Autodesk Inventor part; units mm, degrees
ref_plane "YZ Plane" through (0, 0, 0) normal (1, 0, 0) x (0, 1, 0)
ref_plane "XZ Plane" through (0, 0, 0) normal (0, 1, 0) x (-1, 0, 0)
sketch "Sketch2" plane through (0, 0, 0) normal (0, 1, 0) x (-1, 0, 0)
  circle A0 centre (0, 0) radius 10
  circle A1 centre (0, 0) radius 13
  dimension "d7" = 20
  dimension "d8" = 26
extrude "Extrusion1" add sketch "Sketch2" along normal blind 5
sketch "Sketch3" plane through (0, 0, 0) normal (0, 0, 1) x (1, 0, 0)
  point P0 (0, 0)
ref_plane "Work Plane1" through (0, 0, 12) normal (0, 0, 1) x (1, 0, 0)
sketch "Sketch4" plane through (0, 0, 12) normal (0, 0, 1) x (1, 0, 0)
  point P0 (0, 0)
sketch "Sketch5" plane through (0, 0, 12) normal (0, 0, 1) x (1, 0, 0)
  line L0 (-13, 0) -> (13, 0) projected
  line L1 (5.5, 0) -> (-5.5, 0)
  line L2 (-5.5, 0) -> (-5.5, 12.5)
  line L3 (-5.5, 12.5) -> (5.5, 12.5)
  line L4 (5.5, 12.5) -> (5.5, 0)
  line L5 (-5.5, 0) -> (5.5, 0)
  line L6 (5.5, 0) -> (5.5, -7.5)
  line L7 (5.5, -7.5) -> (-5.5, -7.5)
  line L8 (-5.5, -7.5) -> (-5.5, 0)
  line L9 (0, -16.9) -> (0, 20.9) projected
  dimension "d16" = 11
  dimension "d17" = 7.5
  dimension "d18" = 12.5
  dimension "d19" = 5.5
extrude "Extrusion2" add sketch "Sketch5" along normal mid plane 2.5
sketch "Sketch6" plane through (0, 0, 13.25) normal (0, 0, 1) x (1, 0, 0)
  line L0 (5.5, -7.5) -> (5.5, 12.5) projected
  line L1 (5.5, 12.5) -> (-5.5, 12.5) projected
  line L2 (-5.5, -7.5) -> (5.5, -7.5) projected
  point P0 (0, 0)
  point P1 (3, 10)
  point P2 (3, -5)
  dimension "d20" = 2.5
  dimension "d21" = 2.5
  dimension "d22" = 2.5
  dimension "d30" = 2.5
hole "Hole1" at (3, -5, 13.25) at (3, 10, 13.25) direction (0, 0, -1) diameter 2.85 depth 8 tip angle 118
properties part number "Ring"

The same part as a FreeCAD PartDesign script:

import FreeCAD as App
import Part
import Sketcher


def add_polygon(sketch, points):
    """Adds a closed chain of lines whose ends are joined by coincident constraints."""
    first, n = sketch.GeometryCount, len(points)
    for a, b in zip(points, points[1:] + points[:1]):
        sketch.addGeometry(Part.LineSegment(App.Vector(*a, 0), App.Vector(*b, 0)), False)
    for i in range(n):
        sketch.addConstraint(Sketcher.Constraint("Coincident", first + i, 2, first + (i + 1) % n, 1))

doc = App.newDocument("Part")
body = doc.addObject("PartDesign::Body", "Body")

sketch1 = body.newObject("Sketcher::SketchObject", "Sketch")
sketch1.AttachmentSupport = (doc.getObject("XZ_Plane"), [""])
sketch1.MapMode = "FlatFace"
sketch1.addGeometry([
    Part.Circle(App.Vector(0, 0, 0), App.Vector(0, 0, 1), 13),
    Part.Circle(App.Vector(0, 0, 0), App.Vector(0, 0, 1), 10),
], False)
sketch1.addConstraint([
    Sketcher.Constraint("Coincident", 0, 3, -1, 1),
    Sketcher.Constraint("Coincident", 1, 3, -1, 1),
    Sketcher.Constraint("Diameter", 0, 26.0),
    Sketcher.Constraint("Diameter", 1, 20.0),
])
pad1 = body.newObject("PartDesign::Pad", "Pad")
pad1.Profile = sketch1
pad1.Length = 5
pad1.Reversed = True

sketch2 = body.newObject("Sketcher::SketchObject", "Sketch001")
sketch2.AttachmentSupport = (doc.getObject("XY_Plane"), [""])
sketch2.MapMode = "FlatFace"
sketch2.AttachmentOffset = App.Placement(App.Vector(0, 0, 12), App.Rotation())
add_polygon(sketch2, [(-6, 12), (-6, -8), (6, -8), (6, 12)])
sketch2.addConstraint([
    Sketcher.Constraint("Vertical", 0),
    Sketcher.Constraint("Horizontal", 1),
    Sketcher.Constraint("Vertical", 2),
    Sketcher.Constraint("Horizontal", 3),
    Sketcher.Constraint("DistanceX", 1, 1, 1, 2, 11.0),
    Sketcher.Constraint("DistanceX", 0, 2, -1, 1, 5.5),
    Sketcher.Constraint("DistanceY", 0, 2, -1, 1, 7.5),
    Sketcher.Constraint("DistanceY", -1, 1, 2, 2, 12.5),
])
pad2 = body.newObject("PartDesign::Pad", "Pad001")
pad2.Profile = sketch2
pad2.Length = 2.5
pad2.Midplane = True

sketch3 = body.newObject("Sketcher::SketchObject", "Sketch002")
sketch3.AttachmentSupport = (doc.getObject("XY_Plane"), [""])
sketch3.MapMode = "FlatFace"
sketch3.AttachmentOffset = App.Placement(App.Vector(0, 0, 13.25), App.Rotation())
sketch3.addGeometry([
    Part.Circle(App.Vector(3, -5, 0), App.Vector(0, 0, 1), 1.4),
    Part.Circle(App.Vector(3, 10, 0), App.Vector(0, 0, 1), 1.4),
], False)
sketch3.addConstraint([
    Sketcher.Constraint("Equal", 0, 1),
    Sketcher.Constraint("Vertical", 0, 3, 1, 3),
    Sketcher.Constraint("Diameter", 0, 2.85),
    Sketcher.Constraint("DistanceX", -1, 1, 0, 3, 3.0),
    Sketcher.Constraint("DistanceY", 0, 3, -1, 1, 5.0),
    Sketcher.Constraint("DistanceY", -1, 1, 1, 3, 10.0),
])
doc.recompute()
hole = body.newObject("PartDesign::Hole", "Hole")
hole.Profile = sketch3
hole.ThreadType = "None"
hole.Diameter = 2.85
hole.DepthType = "Dimension"
hole.Depth = 8
hole.DrillPoint = "Angled"
hole.DrillPointAngle = 118

doc.recompute()
